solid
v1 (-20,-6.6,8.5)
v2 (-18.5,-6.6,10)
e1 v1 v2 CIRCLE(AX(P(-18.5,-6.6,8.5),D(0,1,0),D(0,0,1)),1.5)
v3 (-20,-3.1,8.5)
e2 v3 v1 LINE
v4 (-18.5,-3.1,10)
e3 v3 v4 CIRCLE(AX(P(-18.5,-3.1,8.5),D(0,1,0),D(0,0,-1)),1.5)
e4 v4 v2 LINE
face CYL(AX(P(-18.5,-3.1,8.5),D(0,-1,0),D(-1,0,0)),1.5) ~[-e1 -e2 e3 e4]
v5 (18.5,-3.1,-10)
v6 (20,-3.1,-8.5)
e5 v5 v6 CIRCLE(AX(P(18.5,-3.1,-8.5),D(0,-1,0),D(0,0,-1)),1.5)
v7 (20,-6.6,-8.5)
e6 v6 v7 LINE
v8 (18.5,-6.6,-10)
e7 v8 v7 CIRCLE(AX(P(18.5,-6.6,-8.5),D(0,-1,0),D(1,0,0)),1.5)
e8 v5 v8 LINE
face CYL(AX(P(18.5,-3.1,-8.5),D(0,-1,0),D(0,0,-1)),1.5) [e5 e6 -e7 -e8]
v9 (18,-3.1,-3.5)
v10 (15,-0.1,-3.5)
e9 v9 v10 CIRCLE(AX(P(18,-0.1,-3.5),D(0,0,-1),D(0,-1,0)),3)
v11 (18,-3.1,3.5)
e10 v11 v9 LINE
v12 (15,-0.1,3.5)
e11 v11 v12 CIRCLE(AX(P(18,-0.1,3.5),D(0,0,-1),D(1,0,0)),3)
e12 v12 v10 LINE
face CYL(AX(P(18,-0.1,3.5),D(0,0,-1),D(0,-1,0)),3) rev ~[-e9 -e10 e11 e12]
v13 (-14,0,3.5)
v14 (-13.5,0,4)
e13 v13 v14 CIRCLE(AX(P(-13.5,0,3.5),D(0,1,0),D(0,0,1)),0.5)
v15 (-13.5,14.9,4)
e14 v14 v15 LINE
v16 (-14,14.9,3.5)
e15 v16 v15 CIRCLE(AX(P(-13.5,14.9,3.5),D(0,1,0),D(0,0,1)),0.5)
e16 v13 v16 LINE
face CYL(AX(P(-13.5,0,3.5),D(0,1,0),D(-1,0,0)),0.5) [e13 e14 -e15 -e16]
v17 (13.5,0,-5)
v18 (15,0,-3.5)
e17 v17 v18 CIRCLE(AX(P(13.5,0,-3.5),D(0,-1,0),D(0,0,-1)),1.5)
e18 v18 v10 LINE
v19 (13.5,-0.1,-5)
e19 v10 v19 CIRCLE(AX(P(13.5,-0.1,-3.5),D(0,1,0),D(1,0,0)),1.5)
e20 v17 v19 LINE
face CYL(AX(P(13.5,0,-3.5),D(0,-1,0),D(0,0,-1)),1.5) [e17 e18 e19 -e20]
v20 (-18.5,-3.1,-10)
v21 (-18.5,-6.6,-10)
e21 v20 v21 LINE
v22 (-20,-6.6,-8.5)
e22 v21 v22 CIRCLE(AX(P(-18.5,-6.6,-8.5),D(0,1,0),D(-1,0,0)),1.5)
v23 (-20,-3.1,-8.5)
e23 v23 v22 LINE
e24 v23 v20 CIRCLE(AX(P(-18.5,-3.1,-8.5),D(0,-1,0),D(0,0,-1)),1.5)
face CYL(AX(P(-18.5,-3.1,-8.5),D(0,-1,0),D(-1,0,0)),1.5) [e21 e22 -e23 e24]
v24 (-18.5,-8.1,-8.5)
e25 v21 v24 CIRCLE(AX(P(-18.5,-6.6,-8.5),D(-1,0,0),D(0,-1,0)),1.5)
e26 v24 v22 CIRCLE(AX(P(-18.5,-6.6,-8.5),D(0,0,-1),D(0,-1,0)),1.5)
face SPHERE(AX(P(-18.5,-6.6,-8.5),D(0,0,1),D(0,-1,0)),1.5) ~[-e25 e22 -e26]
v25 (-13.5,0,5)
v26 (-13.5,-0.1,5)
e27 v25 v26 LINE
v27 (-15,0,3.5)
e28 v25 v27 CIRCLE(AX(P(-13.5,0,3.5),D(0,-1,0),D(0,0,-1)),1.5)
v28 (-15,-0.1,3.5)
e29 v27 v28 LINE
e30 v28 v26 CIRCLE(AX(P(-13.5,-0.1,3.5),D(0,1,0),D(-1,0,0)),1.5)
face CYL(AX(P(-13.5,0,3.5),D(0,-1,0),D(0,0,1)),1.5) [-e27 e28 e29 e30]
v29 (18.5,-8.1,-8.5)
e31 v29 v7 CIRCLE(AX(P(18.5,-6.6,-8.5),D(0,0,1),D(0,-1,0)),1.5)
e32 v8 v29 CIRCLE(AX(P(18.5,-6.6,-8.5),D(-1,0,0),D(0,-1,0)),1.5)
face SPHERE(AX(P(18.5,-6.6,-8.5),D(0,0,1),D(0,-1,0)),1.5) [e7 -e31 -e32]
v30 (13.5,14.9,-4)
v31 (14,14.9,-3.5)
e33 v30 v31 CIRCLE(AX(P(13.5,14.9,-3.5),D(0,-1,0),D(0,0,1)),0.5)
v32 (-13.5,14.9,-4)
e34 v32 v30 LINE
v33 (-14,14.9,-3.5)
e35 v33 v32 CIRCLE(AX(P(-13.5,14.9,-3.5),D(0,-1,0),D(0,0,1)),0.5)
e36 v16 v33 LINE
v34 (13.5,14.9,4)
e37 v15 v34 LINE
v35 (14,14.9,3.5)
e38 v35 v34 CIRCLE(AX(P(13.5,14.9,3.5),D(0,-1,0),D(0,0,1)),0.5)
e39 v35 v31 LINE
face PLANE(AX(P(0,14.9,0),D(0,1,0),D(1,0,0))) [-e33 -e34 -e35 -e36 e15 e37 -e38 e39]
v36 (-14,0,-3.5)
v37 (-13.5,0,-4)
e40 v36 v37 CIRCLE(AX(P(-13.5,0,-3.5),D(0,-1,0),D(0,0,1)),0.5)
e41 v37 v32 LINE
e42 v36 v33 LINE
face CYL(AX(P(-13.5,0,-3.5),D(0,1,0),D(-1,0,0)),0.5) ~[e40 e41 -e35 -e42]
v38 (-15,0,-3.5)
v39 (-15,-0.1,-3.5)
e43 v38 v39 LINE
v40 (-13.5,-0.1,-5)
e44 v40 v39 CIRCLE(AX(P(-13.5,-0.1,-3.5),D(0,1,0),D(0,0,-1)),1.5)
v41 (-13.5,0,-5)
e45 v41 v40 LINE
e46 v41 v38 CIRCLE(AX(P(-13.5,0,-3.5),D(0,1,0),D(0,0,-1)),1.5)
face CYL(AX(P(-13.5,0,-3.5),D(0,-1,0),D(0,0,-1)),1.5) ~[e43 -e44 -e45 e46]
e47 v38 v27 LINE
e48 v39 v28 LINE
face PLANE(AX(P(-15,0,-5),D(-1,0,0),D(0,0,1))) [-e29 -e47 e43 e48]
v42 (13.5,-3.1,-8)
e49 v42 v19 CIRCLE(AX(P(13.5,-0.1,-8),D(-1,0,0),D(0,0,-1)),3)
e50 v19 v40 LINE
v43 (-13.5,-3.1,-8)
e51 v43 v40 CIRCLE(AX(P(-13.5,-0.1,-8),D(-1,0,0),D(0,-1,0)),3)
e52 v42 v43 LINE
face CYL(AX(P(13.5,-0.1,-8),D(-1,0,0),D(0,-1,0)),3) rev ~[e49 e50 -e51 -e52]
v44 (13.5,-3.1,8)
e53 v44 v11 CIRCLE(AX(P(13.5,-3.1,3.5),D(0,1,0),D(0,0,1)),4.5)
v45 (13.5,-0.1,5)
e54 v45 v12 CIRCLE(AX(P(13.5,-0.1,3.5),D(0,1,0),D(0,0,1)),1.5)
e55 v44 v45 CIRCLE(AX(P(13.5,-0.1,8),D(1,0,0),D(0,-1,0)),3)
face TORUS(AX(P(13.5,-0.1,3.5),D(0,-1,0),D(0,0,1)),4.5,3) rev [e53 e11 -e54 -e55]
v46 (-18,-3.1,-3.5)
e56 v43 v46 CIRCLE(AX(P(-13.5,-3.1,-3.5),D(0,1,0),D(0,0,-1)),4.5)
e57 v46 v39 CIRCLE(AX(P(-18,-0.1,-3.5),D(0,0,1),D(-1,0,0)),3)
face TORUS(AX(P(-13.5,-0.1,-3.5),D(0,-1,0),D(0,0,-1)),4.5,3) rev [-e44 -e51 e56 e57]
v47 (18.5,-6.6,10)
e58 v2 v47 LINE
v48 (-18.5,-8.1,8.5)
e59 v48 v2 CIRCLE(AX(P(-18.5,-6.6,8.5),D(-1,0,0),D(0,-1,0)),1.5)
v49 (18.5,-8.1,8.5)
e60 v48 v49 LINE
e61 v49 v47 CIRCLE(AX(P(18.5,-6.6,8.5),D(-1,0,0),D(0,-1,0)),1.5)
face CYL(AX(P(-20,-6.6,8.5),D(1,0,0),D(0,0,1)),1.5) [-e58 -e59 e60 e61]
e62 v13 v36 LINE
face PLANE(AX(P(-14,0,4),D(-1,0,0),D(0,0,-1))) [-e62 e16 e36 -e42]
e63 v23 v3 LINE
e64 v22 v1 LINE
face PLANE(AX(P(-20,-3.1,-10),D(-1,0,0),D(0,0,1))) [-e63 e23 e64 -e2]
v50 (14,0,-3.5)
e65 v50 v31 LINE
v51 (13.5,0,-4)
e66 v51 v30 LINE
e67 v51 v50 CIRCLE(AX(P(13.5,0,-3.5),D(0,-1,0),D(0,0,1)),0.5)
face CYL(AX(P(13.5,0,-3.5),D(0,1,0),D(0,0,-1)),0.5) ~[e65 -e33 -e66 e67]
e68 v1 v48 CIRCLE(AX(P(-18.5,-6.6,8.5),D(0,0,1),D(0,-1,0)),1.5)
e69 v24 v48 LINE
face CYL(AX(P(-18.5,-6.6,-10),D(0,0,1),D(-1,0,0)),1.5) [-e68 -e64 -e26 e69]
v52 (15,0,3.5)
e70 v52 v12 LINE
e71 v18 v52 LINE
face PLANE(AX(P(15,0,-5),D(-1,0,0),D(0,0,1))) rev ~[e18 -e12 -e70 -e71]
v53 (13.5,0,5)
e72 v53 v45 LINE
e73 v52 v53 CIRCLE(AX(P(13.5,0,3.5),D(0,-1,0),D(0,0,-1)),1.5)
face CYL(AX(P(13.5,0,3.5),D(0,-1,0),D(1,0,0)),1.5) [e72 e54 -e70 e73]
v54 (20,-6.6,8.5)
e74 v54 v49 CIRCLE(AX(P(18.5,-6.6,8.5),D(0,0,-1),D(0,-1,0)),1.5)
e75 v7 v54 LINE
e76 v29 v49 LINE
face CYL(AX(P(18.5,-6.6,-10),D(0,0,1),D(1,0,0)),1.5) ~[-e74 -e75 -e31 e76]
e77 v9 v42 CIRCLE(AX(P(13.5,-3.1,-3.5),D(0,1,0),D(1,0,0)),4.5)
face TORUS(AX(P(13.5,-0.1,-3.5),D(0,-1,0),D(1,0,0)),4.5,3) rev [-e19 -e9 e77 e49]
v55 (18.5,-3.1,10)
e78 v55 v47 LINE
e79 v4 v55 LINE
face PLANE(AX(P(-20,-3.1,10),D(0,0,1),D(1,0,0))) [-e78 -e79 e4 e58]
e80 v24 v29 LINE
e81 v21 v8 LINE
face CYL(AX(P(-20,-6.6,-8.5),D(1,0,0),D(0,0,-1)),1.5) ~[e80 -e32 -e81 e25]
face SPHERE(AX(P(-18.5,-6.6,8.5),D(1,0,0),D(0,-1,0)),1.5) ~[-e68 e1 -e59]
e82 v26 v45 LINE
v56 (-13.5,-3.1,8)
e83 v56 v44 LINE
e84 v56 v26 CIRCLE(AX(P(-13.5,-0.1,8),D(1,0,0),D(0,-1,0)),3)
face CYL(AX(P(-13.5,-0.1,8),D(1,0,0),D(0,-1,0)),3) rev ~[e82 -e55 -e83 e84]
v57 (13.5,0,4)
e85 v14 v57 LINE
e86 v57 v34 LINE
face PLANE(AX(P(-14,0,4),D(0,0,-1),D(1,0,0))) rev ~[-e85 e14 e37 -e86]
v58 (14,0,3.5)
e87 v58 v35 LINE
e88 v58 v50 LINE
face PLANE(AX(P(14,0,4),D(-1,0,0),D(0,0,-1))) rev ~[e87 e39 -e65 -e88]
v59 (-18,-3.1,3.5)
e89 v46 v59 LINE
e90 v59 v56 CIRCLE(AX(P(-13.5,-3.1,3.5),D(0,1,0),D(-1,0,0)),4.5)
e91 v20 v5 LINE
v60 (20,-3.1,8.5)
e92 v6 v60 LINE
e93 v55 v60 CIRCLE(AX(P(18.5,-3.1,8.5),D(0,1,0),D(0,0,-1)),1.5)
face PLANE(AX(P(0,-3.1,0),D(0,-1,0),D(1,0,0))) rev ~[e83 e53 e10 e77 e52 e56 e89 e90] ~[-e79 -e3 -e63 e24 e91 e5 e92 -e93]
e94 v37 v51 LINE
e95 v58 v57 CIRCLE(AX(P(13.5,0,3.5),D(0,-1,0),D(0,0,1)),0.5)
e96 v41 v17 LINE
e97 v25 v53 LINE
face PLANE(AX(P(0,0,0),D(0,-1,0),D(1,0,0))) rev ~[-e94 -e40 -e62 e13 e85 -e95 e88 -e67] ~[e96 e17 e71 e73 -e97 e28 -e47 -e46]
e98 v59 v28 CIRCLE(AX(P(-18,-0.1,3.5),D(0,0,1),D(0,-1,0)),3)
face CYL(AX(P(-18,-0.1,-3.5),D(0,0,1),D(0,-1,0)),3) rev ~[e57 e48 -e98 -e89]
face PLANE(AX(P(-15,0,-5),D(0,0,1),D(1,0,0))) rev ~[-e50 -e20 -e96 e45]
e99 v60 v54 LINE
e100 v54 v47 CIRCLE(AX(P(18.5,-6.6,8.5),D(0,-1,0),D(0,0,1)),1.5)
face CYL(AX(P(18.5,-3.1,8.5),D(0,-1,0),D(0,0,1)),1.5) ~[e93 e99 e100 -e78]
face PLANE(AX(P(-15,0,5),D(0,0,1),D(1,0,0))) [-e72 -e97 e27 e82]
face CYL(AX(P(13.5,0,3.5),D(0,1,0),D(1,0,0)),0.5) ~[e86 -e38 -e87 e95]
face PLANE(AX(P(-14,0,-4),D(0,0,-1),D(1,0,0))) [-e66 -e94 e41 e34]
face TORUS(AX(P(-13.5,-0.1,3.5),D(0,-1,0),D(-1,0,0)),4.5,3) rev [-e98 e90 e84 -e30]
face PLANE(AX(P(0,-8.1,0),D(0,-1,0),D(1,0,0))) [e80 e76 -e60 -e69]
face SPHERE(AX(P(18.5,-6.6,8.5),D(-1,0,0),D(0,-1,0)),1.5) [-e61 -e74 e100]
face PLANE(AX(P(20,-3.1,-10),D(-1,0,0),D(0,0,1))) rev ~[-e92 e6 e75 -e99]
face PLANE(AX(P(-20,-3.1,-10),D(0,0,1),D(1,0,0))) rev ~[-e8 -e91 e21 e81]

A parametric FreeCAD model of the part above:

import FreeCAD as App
import Part
import Sketcher

V = App.Vector
Q = App.Units.Quantity


def edges_at(feature, points):
    """Names of the edges that pass closest to the given points."""
    edges = feature.Shape.Edges
    near = lambda p: min(range(len(edges)), key=lambda i: edges[i].distToShape(Part.Vertex(*p))[0])
    return sorted({f"Edge{near(p) + 1}" for p in points})

doc = App.newDocument("Part")
params = doc.addObject("Spreadsheet::Sheet", "Params")
for row, (alias, value) in enumerate([
    ("sketch1_width", "30 mm"),
    ("sketch1_height", "10 mm"),
    ("pad1_length", "3.1 mm"),
    ("sketch2_width", "40 mm"),
    ("sketch2_height", "20 mm"),
    ("pad2_length", "5 mm"),
    ("fillet_radius", "1.5 mm"),
    ("fillet2_radius", "3 mm"),
    ("fillet3_radius", "1.5 mm"),
    ("sketch3_width", "28 mm"),
    ("sketch3_height", "8 mm"),
    ("pad3_length", "14.9 mm"),
    ("fillet4_radius", "0.5 mm"),
], start=1):
    params.set(f"A{row}", alias)
    params.set(f"B{row}", "=" + value)
    params.setAlias(f"B{row}", alias)

body = doc.addObject("PartDesign::Body", "Body")

# Sketch on XZ plane
sketch1 = body.newObject("Sketcher::SketchObject", "Sketch")
sketch1.AttachmentSupport = (doc.getObject("XZ_Plane"), [""])
sketch1.MapMode = "FlatFace"
sketch1.addGeometry([
    Part.LineSegment(V(-15, 5, 0), V(-15, -5, 0)),
    Part.LineSegment(V(-15, -5, 0), V(15, -5, 0)),
    Part.LineSegment(V(15, -5, 0), V(15, 5, 0)),
    Part.LineSegment(V(15, 5, 0), V(-15, 5, 0)),
], False)
sketch1.addConstraint([
    Sketcher.Constraint("Coincident", 0, 2, 1, 1),
    Sketcher.Constraint("Coincident", 1, 2, 2, 1),
    Sketcher.Constraint("Coincident", 2, 2, 3, 1),
    Sketcher.Constraint("Coincident", 3, 2, 0, 1),
    Sketcher.Constraint("Vertical", 0),
    Sketcher.Constraint("Horizontal", 1),
    Sketcher.Constraint("Vertical", 2),
    Sketcher.Constraint("Horizontal", 3),
    Sketcher.Constraint("Symmetric", 0, 2, 2, 2, -1, 1),
    Sketcher.Constraint("DistanceX", 1, 1, 1, 2, Q("30 mm")),
    Sketcher.Constraint("DistanceY", 0, 2, 0, 1, Q("10 mm")),
])
sketch1.setExpression("Constraints[9]", "Params.sketch1_width")
sketch1.setExpression("Constraints[10]", "Params.sketch1_height")
pad1 = body.newObject("PartDesign::Pad", "Pad")
pad1.Profile = sketch1
pad1.setExpression("Length", "Params.pad1_length")

# Sketch on XZ plane
sketch2 = body.newObject("Sketcher::SketchObject", "Sketch001")
sketch2.AttachmentSupport = (doc.getObject("XZ_Plane"), [""])
sketch2.MapMode = "FlatFace"
sketch2.AttachmentOffset = App.Placement(V(0, 0, 3.1), App.Rotation())
sketch2.addGeometry([
    Part.LineSegment(V(-20, 10, 0), V(-20, -10, 0)),
    Part.LineSegment(V(-20, -10, 0), V(20, -10, 0)),
    Part.LineSegment(V(20, -10, 0), V(20, 10, 0)),
    Part.LineSegment(V(20, 10, 0), V(-20, 10, 0)),
], False)
sketch2.addConstraint([
    Sketcher.Constraint("Coincident", 0, 2, 1, 1),
    Sketcher.Constraint("Coincident", 1, 2, 2, 1),
    Sketcher.Constraint("Coincident", 2, 2, 3, 1),
    Sketcher.Constraint("Coincident", 3, 2, 0, 1),
    Sketcher.Constraint("Vertical", 0),
    Sketcher.Constraint("Horizontal", 1),
    Sketcher.Constraint("Vertical", 2),
    Sketcher.Constraint("Horizontal", 3),
    Sketcher.Constraint("Symmetric", 0, 2, 2, 2, -1, 1),
    Sketcher.Constraint("DistanceX", 1, 1, 1, 2, Q("40 mm")),
    Sketcher.Constraint("DistanceY", 0, 2, 0, 1, Q("20 mm")),
])
sketch2.setExpression("Constraints[9]", "Params.sketch2_width")
sketch2.setExpression("Constraints[10]", "Params.sketch2_height")
pad2 = body.newObject("PartDesign::Pad", "Pad001")
pad2.Profile = sketch2
pad2.setExpression("Length", "Params.pad2_length")
doc.recompute()

fillet = body.newObject("PartDesign::Fillet", "Fillet")
fillet.Base = (pad2, edges_at(pad2, [
    (15, -1.55, 5),
    (15, -1.55, -5),
    (-15, -1.55, 5),
    (-15, -1.55, -5),
]))
fillet.setExpression("Radius", "Params.fillet_radius")
doc.recompute()

fillet2 = body.newObject("PartDesign::Fillet", "Fillet001")
fillet2.Base = (fillet, edges_at(fillet, [(0, -3.1, 5)]))
fillet2.setExpression("Radius", "Params.fillet2_radius")
doc.recompute()

fillet3 = body.newObject("PartDesign::Fillet", "Fillet002")
fillet3.Base = (fillet2, edges_at(fillet2, [
    (0, -8.1, 10),
    (-20, -8.1, 0),
    (20, -8.1, 0),
    (0, -8.1, -10),
    (20, -5.6, 10),
    (-20, -5.6, 10),
    (20, -5.6, -10),
    (-20, -5.6, -10),
]))
fillet3.setExpression("Radius", "Params.fillet3_radius")

# Sketch on XZ plane
sketch3 = body.newObject("Sketcher::SketchObject", "Sketch002")
sketch3.AttachmentSupport = (doc.getObject("XZ_Plane"), [""])
sketch3.MapMode = "FlatFace"
sketch3.addGeometry([
    Part.LineSegment(V(-14, -4, 0), V(-14, 4, 0)),
    Part.LineSegment(V(-14, 4, 0), V(14, 4, 0)),
    Part.LineSegment(V(14, 4, 0), V(14, -4, 0)),
    Part.LineSegment(V(14, -4, 0), V(-14, -4, 0)),
], False)
sketch3.addConstraint([
    Sketcher.Constraint("Coincident", 0, 2, 1, 1),
    Sketcher.Constraint("Coincident", 1, 2, 2, 1),
    Sketcher.Constraint("Coincident", 2, 2, 3, 1),
    Sketcher.Constraint("Coincident", 3, 2, 0, 1),
    Sketcher.Constraint("Vertical", 0),
    Sketcher.Constraint("Horizontal", 1),
    Sketcher.Constraint("Vertical", 2),
    Sketcher.Constraint("Horizontal", 3),
    Sketcher.Constraint("Symmetric", 0, 2, 2, 2, -1, 1),
    Sketcher.Constraint("DistanceX", 1, 1, 1, 2, Q("28 mm")),
    Sketcher.Constraint("DistanceY", 0, 1, 0, 2, Q("8 mm")),
])
sketch3.setExpression("Constraints[9]", "Params.sketch3_width")
sketch3.setExpression("Constraints[10]", "Params.sketch3_height")
pad3 = body.newObject("PartDesign::Pad", "Pad002")
pad3.Profile = sketch3
pad3.setExpression("Length", "Params.pad3_length")
pad3.Reversed = True
doc.recompute()

fillet4 = body.newObject("PartDesign::Fillet", "Fillet003")
fillet4.Base = (pad3, edges_at(pad3, [
    (14, 7.45, 4),
    (-14, 7.45, 4),
    (-14, 7.45, -4),
    (14, 7.45, -4),
]))
fillet4.setExpression("Radius", "Params.fillet4_radius")

doc.recompute()
